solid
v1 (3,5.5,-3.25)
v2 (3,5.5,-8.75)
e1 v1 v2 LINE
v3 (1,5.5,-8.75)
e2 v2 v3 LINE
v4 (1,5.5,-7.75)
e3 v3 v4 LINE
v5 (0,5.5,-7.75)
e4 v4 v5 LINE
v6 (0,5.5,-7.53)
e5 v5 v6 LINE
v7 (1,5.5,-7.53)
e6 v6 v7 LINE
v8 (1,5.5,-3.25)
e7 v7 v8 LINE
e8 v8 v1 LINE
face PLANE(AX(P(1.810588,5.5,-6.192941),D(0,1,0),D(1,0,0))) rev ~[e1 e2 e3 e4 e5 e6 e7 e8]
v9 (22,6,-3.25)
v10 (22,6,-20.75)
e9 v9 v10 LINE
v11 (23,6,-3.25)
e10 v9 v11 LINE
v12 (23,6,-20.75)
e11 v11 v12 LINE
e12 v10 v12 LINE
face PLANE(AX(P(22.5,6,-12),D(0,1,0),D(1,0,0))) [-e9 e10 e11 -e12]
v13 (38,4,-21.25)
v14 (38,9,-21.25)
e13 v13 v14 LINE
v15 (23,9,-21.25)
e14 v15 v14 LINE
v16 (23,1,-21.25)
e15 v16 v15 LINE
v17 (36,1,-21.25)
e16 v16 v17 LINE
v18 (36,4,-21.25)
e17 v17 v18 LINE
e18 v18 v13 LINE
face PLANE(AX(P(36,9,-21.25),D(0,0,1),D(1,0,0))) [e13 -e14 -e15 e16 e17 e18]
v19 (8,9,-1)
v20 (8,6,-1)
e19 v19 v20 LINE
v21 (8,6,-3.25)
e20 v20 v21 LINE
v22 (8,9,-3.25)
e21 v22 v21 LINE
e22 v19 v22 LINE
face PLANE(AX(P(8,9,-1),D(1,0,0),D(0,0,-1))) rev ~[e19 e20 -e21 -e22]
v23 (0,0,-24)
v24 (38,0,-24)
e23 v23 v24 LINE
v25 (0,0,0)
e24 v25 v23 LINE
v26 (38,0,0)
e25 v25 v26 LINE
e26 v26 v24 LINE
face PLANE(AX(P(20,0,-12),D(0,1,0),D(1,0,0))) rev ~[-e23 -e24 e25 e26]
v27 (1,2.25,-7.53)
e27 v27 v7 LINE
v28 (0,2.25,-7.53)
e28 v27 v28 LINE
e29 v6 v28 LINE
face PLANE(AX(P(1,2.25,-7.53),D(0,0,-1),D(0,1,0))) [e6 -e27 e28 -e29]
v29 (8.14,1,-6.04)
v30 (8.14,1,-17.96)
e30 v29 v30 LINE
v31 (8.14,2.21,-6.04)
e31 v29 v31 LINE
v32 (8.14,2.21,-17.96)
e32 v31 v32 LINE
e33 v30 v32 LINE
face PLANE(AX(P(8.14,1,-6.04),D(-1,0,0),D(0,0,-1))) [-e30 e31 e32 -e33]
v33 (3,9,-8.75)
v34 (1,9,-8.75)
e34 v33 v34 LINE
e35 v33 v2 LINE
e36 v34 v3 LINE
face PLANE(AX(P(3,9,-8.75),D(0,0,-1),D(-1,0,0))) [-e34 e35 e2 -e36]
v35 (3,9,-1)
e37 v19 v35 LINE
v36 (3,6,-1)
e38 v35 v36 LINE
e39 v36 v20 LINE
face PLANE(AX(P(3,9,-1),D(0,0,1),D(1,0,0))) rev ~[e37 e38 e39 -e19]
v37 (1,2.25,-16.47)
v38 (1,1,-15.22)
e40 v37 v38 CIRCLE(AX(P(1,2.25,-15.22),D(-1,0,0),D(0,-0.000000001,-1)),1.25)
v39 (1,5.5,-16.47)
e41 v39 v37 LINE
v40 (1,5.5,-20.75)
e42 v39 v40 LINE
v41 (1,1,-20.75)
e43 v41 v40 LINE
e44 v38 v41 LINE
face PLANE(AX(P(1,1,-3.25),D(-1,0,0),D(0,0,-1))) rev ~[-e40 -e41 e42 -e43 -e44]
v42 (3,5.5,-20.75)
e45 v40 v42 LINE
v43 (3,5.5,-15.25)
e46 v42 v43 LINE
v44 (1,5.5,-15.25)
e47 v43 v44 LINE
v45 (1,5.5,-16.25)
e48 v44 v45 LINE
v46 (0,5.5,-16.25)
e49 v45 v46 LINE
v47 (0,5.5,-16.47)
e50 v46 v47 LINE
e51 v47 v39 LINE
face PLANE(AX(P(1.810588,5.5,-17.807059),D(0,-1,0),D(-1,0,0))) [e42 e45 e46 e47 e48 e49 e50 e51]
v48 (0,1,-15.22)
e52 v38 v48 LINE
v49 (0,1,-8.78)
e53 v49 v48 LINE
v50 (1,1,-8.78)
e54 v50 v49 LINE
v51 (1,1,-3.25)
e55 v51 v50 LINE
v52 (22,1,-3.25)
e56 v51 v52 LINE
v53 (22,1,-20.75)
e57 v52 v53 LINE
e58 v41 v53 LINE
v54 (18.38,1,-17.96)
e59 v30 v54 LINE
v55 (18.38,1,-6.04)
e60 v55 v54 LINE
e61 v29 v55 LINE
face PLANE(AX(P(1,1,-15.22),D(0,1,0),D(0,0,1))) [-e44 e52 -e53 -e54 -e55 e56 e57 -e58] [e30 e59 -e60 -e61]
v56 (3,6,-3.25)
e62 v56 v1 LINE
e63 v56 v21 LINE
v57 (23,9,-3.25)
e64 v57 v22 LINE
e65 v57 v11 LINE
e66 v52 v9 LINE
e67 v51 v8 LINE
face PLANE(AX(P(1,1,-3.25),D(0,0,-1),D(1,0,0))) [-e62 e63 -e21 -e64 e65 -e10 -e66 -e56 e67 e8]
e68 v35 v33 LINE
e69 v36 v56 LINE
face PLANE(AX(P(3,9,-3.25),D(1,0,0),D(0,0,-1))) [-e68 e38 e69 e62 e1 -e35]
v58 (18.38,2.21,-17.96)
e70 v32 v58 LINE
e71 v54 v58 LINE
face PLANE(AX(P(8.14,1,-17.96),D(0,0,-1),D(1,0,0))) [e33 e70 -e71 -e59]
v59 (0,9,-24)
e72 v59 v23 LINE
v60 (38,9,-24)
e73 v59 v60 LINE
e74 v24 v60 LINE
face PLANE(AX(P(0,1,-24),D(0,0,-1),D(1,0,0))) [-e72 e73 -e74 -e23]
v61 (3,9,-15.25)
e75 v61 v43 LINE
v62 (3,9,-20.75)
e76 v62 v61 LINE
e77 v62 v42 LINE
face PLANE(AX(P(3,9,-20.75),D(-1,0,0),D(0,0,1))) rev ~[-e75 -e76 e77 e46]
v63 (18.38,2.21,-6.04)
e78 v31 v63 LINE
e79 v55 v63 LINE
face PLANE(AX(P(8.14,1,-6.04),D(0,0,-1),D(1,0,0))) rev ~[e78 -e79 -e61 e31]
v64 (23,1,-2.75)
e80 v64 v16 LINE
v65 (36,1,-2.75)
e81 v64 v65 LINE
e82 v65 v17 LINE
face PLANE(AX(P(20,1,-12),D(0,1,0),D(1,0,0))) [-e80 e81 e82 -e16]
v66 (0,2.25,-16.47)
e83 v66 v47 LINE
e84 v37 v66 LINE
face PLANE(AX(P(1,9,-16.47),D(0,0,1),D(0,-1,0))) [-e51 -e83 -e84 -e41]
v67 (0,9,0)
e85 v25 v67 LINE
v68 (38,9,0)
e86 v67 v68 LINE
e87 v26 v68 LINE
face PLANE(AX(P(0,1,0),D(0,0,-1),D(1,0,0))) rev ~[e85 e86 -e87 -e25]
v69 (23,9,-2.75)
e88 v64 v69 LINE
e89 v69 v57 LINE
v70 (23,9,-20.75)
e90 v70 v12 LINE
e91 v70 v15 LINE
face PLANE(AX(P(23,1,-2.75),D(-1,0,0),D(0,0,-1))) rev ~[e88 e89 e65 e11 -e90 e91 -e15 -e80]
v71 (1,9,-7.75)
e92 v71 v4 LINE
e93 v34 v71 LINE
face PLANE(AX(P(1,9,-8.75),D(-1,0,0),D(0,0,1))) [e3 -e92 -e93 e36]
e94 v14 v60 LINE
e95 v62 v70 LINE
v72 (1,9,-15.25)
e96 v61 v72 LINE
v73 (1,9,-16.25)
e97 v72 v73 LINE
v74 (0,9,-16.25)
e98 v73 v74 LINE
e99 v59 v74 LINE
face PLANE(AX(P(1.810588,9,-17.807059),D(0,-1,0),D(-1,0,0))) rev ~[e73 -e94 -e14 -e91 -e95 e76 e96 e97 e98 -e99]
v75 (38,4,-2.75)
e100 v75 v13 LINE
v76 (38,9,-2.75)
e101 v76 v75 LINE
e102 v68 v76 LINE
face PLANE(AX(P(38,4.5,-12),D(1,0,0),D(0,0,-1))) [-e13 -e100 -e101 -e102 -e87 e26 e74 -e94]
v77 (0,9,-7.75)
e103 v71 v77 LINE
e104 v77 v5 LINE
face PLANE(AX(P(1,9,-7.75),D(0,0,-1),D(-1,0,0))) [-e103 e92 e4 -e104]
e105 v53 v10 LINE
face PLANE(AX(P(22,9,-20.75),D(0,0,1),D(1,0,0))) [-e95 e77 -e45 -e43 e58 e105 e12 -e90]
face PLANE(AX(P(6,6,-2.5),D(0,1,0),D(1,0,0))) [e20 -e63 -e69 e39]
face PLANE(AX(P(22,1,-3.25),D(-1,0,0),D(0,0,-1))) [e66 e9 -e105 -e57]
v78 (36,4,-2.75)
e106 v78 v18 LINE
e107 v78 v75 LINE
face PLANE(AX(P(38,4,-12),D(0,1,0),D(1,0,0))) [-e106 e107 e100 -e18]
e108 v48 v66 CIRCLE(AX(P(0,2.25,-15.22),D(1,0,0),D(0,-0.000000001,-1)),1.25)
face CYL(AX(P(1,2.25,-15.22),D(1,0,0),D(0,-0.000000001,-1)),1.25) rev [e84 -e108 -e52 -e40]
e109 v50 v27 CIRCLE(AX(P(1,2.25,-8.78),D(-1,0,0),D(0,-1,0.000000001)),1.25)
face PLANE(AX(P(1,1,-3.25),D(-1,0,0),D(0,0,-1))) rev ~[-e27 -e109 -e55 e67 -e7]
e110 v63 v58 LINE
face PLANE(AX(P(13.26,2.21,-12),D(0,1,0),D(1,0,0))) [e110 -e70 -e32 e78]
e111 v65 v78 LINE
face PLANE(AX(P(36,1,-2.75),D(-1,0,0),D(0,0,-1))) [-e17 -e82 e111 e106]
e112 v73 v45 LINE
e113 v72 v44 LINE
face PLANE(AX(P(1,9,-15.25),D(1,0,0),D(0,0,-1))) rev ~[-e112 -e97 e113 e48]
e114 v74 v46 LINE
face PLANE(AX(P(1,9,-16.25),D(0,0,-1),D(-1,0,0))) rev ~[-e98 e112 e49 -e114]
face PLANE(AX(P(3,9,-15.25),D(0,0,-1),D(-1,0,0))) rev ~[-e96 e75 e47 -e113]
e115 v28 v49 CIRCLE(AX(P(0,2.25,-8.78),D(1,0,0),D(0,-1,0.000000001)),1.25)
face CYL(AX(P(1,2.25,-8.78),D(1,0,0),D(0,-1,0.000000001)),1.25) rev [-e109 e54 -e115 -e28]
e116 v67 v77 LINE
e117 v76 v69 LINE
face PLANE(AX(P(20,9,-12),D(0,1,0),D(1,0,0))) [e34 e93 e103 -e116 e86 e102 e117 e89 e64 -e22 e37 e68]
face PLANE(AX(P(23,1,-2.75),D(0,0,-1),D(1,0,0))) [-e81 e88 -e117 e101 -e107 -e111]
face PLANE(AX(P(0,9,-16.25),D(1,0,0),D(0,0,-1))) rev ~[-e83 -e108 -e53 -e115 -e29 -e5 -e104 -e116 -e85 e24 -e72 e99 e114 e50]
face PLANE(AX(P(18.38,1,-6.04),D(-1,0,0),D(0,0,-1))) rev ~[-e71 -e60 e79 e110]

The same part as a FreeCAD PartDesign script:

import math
import FreeCAD as App
import Part
import Sketcher
Q = App.Units.Quantity


def add_polygon(sketch, points):
    """Adds a closed chain of lines whose ends are joined by coincident constraints."""
    first, n = sketch.GeometryCount, len(points)
    for a, b in zip(points, points[1:] + points[:1]):
        sketch.addGeometry(Part.LineSegment(App.Vector(*a, 0), App.Vector(*b, 0)), False)
    for i in range(n):
        sketch.addConstraint(Sketcher.Constraint("Coincident", first + i, 2, first + (i + 1) % n, 1))

doc = App.newDocument("Part")
body = doc.addObject("PartDesign::Body", "Body")

# Sketch on XZ plane
sketch1 = body.newObject("Sketcher::SketchObject", "Sketch")
sketch1.AttachmentSupport = (doc.getObject("XZ_Plane"), [""])
sketch1.MapMode = "FlatFace"
add_polygon(sketch1, [(0, -24), (0, 0), (40, 0), (40, -24)])  # lines 0-3
sketch1.addConstraint(Sketcher.Constraint("Vertical", 0))
sketch1.addConstraint(Sketcher.Constraint("Horizontal", 1))
sketch1.addConstraint(Sketcher.Constraint("Vertical", 2))
sketch1.addConstraint(Sketcher.Constraint("Horizontal", 3))
sketch1.addConstraint(Sketcher.Constraint("Coincident", 0, 2, -1, 1))
sketch1.addConstraint(Sketcher.Constraint("DistanceX", 1, 1, 1, 2, Q("40 mm")))
sketch1.addConstraint(Sketcher.Constraint("DistanceY", 0, 1, 0, 2, Q("24 mm")))
pad1 = body.newObject("PartDesign::Pad", "Pad")
pad1.Profile = sketch1
pad1.Length = 1
pad1.Reversed = True

# Sketch on XZ plane
sketch2 = body.newObject("Sketcher::SketchObject", "Sketch001")
sketch2.AttachmentSupport = (doc.getObject("XZ_Plane"), [""])
sketch2.MapMode = "FlatFace"
sketch2.AttachmentOffset = App.Placement(App.Vector(0, 0, -1), App.Rotation())
add_polygon(sketch2, [(0, -24), (0, 0), (40, 0), (40, -24)])  # lines 0-3
add_polygon(sketch2, [(22, -3.25), (1, -3.25), (1, -20.75), (22, -20.75)])  # lines 4-7
add_polygon(sketch2, [(36, -2.75), (23, -2.75), (23, -21.25), (36, -21.25)])  # lines 8-11
sketch2.addConstraint(Sketcher.Constraint("Vertical", 0))
sketch2.addConstraint(Sketcher.Constraint("Horizontal", 1))
sketch2.addConstraint(Sketcher.Constraint("Vertical", 2))
sketch2.addConstraint(Sketcher.Constraint("Horizontal", 3))
sketch2.addConstraint(Sketcher.Constraint("Horizontal", 4))
sketch2.addConstraint(Sketcher.Constraint("Vertical", 5))
sketch2.addConstraint(Sketcher.Constraint("Horizontal", 6))
sketch2.addConstraint(Sketcher.Constraint("Vertical", 7))
sketch2.addConstraint(Sketcher.Constraint("Horizontal", 8))
sketch2.addConstraint(Sketcher.Constraint("Vertical", 9))
sketch2.addConstraint(Sketcher.Constraint("Horizontal", 10))
sketch2.addConstraint(Sketcher.Constraint("Vertical", 11))
sketch2.addConstraint(Sketcher.Constraint("Coincident", 0, 2, -1, 1))
sketch2.addConstraint(Sketcher.Constraint("DistanceX", 1, 1, 1, 2, Q("40 mm")))
sketch2.addConstraint(Sketcher.Constraint("DistanceX", 4, 2, 4, 1, Q("21 mm")))
sketch2.addConstraint(Sketcher.Constraint("DistanceX", 8, 2, 8, 1, Q("13 mm")))
sketch2.addConstraint(Sketcher.Constraint("DistanceY", 0, 1, 0, 2, Q("24 mm")))
sketch2.addConstraint(Sketcher.Constraint("DistanceY", 5, 2, 5, 1, Q("17.5 mm")))
sketch2.addConstraint(Sketcher.Constraint("DistanceY", 9, 2, 9, 1, Q("18.5 mm")))
sketch2.addConstraint(Sketcher.Constraint("DistanceX", -1, 1, 4, 2, Q("1 mm")))
sketch2.addConstraint(Sketcher.Constraint("DistanceX", -1, 1, 8, 2, Q("23 mm")))
sketch2.addConstraint(Sketcher.Constraint("DistanceY", 6, 2, 8, 2, Q("18 mm")))
sketch2.addConstraint(Sketcher.Constraint("DistanceY", 4, 2, -1, 1, Q("3.25 mm")))
pad2 = body.newObject("PartDesign::Pad", "Pad001")
pad2.Profile = sketch2
pad2.Length = 8
pad2.Reversed = True

# Sketch on XZ plane
sketch3 = body.newObject("Sketcher::SketchObject", "Sketch002")
sketch3.AttachmentSupport = (doc.getObject("XZ_Plane"), [""])
sketch3.MapMode = "FlatFace"
sketch3.AttachmentOffset = App.Placement(App.Vector(0, 0, -9), App.Rotation())
add_polygon(sketch3, [(22, -20.75), (22, -3.25), (23, -3.25), (23, -20.75)])  # lines 0-3
sketch3.addConstraint(Sketcher.Constraint("Vertical", 0))
sketch3.addConstraint(Sketcher.Constraint("Horizontal", 1))
sketch3.addConstraint(Sketcher.Constraint("Vertical", 2))
sketch3.addConstraint(Sketcher.Constraint("Horizontal", 3))
sketch3.addConstraint(Sketcher.Constraint("DistanceX", 1, 1, 1, 2, Q("1 mm")))
sketch3.addConstraint(Sketcher.Constraint("DistanceY", 0, 1, 0, 2, Q("17.5 mm")))
sketch3.addConstraint(Sketcher.Constraint("DistanceX", -1, 1, 0, 2, Q("22 mm")))
sketch3.addConstraint(Sketcher.Constraint("DistanceY", 0, 2, -1, 1, Q("3.25 mm")))
pocket1 = body.newObject("PartDesign::Pocket", "Pocket")
pocket1.Profile = sketch3
pocket1.Length = 3
pocket1.Reversed = True

# Sketch on XZ plane
sketch4 = body.newObject("Sketcher::SketchObject", "Sketch003")
sketch4.AttachmentSupport = (doc.getObject("XZ_Plane"), [""])
sketch4.MapMode = "FlatFace"
sketch4.AttachmentOffset = App.Placement(App.Vector(0, 0, -1), App.Rotation())
add_polygon(sketch4, [(8.14, -17.96), (8.14, -6.04), (18.38, -6.04), (18.38, -17.96)])  # lines 0-3
sketch4.addConstraint(Sketcher.Constraint("Vertical", 0))
sketch4.addConstraint(Sketcher.Constraint("Horizontal", 1))
sketch4.addConstraint(Sketcher.Constraint("Vertical", 2))
sketch4.addConstraint(Sketcher.Constraint("Horizontal", 3))
sketch4.addConstraint(Sketcher.Constraint("DistanceX", 1, 1, 1, 2, Q("10.24 mm")))
sketch4.addConstraint(Sketcher.Constraint("DistanceY", 0, 1, 0, 2, Q("11.92 mm")))
sketch4.addConstraint(Sketcher.Constraint("DistanceX", -1, 1, 0, 2, Q("8.14 mm")))
sketch4.addConstraint(Sketcher.Constraint("DistanceY", 0, 2, -1, 1, Q("6.04 mm")))
pad3 = body.newObject("PartDesign::Pad", "Pad002")
pad3.Profile = sketch4
pad3.Length = 1.21
pad3.Reversed = True

# Sketch on YZ plane
sketch5 = body.newObject("Sketcher::SketchObject", "Sketch004")
sketch5.AttachmentSupport = (doc.getObject("YZ_Plane"), [""])
sketch5.MapMode = "FlatFace"
sketch5.AttachmentOffset = App.Placement(App.Vector(0, 0, 1), App.Rotation())
sketch5.addGeometry(Part.LineSegment(App.Vector(9, -7.53, 0), App.Vector(2.25, -7.53, 0)), False)
sketch5.addGeometry(Part.ArcOfCircle(Part.Circle(App.Vector(2.25, -8.78, 0), App.Vector(0, 0, 1), 1.25), math.radians(90), math.radians(180)), False)
sketch5.addGeometry(Part.LineSegment(App.Vector(1, -8.78, 0), App.Vector(1, -15.22, 0)), False)
sketch5.addGeometry(Part.ArcOfCircle(Part.Circle(App.Vector(2.25, -15.22, 0), App.Vector(0, 0, 1), 1.25), math.radians(-180), math.radians(-90)), False)
sketch5.addGeometry(Part.LineSegment(App.Vector(2.25, -16.47, 0), App.Vector(9, -16.47, 0)), False)
sketch5.addGeometry(Part.LineSegment(App.Vector(9, -16.47, 0), App.Vector(9, -7.53, 0)), False)
sketch5.addConstraint(Sketcher.Constraint("Tangent", 0, 2, 1, 1))
sketch5.addConstraint(Sketcher.Constraint("Tangent", 1, 2, 2, 1))
sketch5.addConstraint(Sketcher.Constraint("Tangent", 2, 2, 3, 1))
sketch5.addConstraint(Sketcher.Constraint("Tangent", 3, 2, 4, 1))
sketch5.addConstraint(Sketcher.Constraint("Coincident", 4, 2, 5, 1))
sketch5.addConstraint(Sketcher.Constraint("Coincident", 5, 2, 0, 1))
sketch5.addConstraint(Sketcher.Constraint("Horizontal", 0))
sketch5.addConstraint(Sketcher.Constraint("Vertical", 2))
sketch5.addConstraint(Sketcher.Constraint("Horizontal", 4))
sketch5.addConstraint(Sketcher.Constraint("Vertical", 5))
sketch5.addConstraint(Sketcher.Constraint("Equal", 1, 3))
sketch5.addConstraint(Sketcher.Constraint("Radius", 1, Q("1.25 mm")))
sketch5.addConstraint(Sketcher.Constraint("DistanceX", -1, 1, 1, 2, Q("1 mm")))
sketch5.addConstraint(Sketcher.Constraint("DistanceX", -1, 1, 4, 2, Q("9 mm")))
sketch5.addConstraint(Sketcher.Constraint("DistanceY", 2, 2, 2, 1, Q("6.44 mm")))
sketch5.addConstraint(Sketcher.Constraint("DistanceY", 1, 3, -1, 1, Q("8.78 mm")))
pocket2 = body.newObject("PartDesign::Pocket", "Pocket001")
pocket2.Profile = sketch5
pocket2.Length = 2

# Sketch on XZ plane
sketch6 = body.newObject("Sketcher::SketchObject", "Sketch005")
sketch6.AttachmentSupport = (doc.getObject("XZ_Plane"), [""])
sketch6.MapMode = "FlatFace"
sketch6.AttachmentOffset = App.Placement(App.Vector(0, 0, -9), App.Rotation())
add_polygon(sketch6, [(36, -21.25), (36, -2.75), (40, -2.75), (40, -21.25)])  # lines 0-3
sketch6.addConstraint(Sketcher.Constraint("Vertical", 0))
sketch6.addConstraint(Sketcher.Constraint("Horizontal", 1))
sketch6.addConstraint(Sketcher.Constraint("Vertical", 2))
sketch6.addConstraint(Sketcher.Constraint("Horizontal", 3))
sketch6.addConstraint(Sketcher.Constraint("DistanceX", 1, 1, 1, 2, Q("4 mm")))
sketch6.addConstraint(Sketcher.Constraint("DistanceY", 0, 1, 0, 2, Q("18.5 mm")))
sketch6.addConstraint(Sketcher.Constraint("DistanceX", -1, 1, 0, 2, Q("36 mm")))
sketch6.addConstraint(Sketcher.Constraint("DistanceY", 0, 2, -1, 1, Q("2.75 mm")))
pocket3 = body.newObject("PartDesign::Pocket", "Pocket002")
pocket3.Profile = sketch6
pocket3.Length = 5
pocket3.Reversed = True

# Sketch on YZ plane
sketch7 = body.newObject("Sketcher::SketchObject", "Sketch006")
sketch7.AttachmentSupport = (doc.getObject("YZ_Plane"), [""])
sketch7.MapMode = "FlatFace"
sketch7.AttachmentOffset = App.Placement(App.Vector(0, 0, 40), App.Rotation())
add_polygon(sketch7, [(9, 0), (0, 0), (0, -24), (9, -24)])  # lines 0-3
sketch7.addConstraint(Sketcher.Constraint("Horizontal", 0))
sketch7.addConstraint(Sketcher.Constraint("Vertical", 1))
sketch7.addConstraint(Sketcher.Constraint("Horizontal", 2))
sketch7.addConstraint(Sketcher.Constraint("Vertical", 3))
sketch7.addConstraint(Sketcher.Constraint("Coincident", 0, 2, -1, 1))
sketch7.addConstraint(Sketcher.Constraint("DistanceX", 0, 2, 0, 1, Q("9 mm")))
sketch7.addConstraint(Sketcher.Constraint("DistanceY", 1, 2, 1, 1, Q("24 mm")))
pocket4 = body.newObject("PartDesign::Pocket", "Pocket003")
pocket4.Profile = sketch7
pocket4.Length = 2

# Sketch on XZ plane
sketch8 = body.newObject("Sketcher::SketchObject", "Sketch007")
sketch8.AttachmentSupport = (doc.getObject("XZ_Plane"), [""])
sketch8.MapMode = "FlatFace"
sketch8.AttachmentOffset = App.Placement(App.Vector(0, 0, -9), App.Rotation())
add_polygon(sketch8, [(4, -4), (4, -1), (8, -1), (8, -4)])  # lines 0-3
sketch8.addConstraint(Sketcher.Constraint("Vertical", 0))
sketch8.addConstraint(Sketcher.Constraint("Horizontal", 1))
sketch8.addConstraint(Sketcher.Constraint("Vertical", 2))
sketch8.addConstraint(Sketcher.Constraint("Horizontal", 3))
sketch8.addConstraint(Sketcher.Constraint("DistanceX", 1, 1, 1, 2, Q("4 mm")))
sketch8.addConstraint(Sketcher.Constraint("DistanceY", 0, 1, 0, 2, Q("3 mm")))
sketch8.addConstraint(Sketcher.Constraint("DistanceX", -1, 1, 0, 2, Q("4 mm")))
sketch8.addConstraint(Sketcher.Constraint("DistanceY", 0, 2, -1, 1, Q("1 mm")))
pocket5 = body.newObject("PartDesign::Pocket", "Pocket004")
pocket5.Profile = sketch8
pocket5.Length = 3
pocket5.Reversed = True

# Sketch on XZ plane
sketch9 = body.newObject("Sketcher::SketchObject", "Sketch008")
sketch9.AttachmentSupport = (doc.getObject("XZ_Plane"), [""])
sketch9.MapMode = "FlatFace"
sketch9.AttachmentOffset = App.Placement(App.Vector(0, 0, -9), App.Rotation())
add_polygon(sketch9, [(1, -20.75), (1, -16.47), (0, -16.47), (0, -16.25), (1, -16.25), (1, -15.25), (3, -15.25), (3, -20.75)])  # lines 0-7
add_polygon(sketch9, [(1, -3.25), (3, -3.25), (3, -8.75), (1, -8.75), (1, -7.75), (0, -7.75), (0, -7.53), (1, -7.53)])  # lines 8-15
sketch9.addConstraint(Sketcher.Constraint("Vertical", 0))
sketch9.addConstraint(Sketcher.Constraint("Horizontal", 1))
sketch9.addConstraint(Sketcher.Constraint("Vertical", 2))
sketch9.addConstraint(Sketcher.Constraint("Horizontal", 3))
sketch9.addConstraint(Sketcher.Constraint("Vertical", 4))
sketch9.addConstraint(Sketcher.Constraint("Horizontal", 5))
sketch9.addConstraint(Sketcher.Constraint("Vertical", 6))
sketch9.addConstraint(Sketcher.Constraint("Horizontal", 7))
sketch9.addConstraint(Sketcher.Constraint("Horizontal", 8))
sketch9.addConstraint(Sketcher.Constraint("Vertical", 9))
sketch9.addConstraint(Sketcher.Constraint("Horizontal", 10))
sketch9.addConstraint(Sketcher.Constraint("Vertical", 11))
sketch9.addConstraint(Sketcher.Constraint("Horizontal", 12))
sketch9.addConstraint(Sketcher.Constraint("Vertical", 13))
sketch9.addConstraint(Sketcher.Constraint("Horizontal", 14))
sketch9.addConstraint(Sketcher.Constraint("Vertical", 15))
sketch9.addConstraint(Sketcher.Constraint("PointOnObject", 1, 2, -2))
sketch9.addConstraint(Sketcher.Constraint("PointOnObject", 12, 2, -2))
sketch9.addConstraint(Sketcher.Constraint("Vertical", 0, 2, 3, 2))
sketch9.addConstraint(Sketcher.Constraint("Vertical", 6, 2, 8, 2))
sketch9.addConstraint(Sketcher.Constraint("Vertical", 7, 2, 10, 2))
sketch9.addConstraint(Sketcher.Constraint("Vertical", 11, 2, 14, 2))
sketch9.addConstraint(Sketcher.Constraint("Equal", 14, 4))
sketch9.addConstraint(Sketcher.Constraint("Equal", 6, 9))
sketch9.addConstraint(Sketcher.Constraint("Equal", 4, 11))
sketch9.addConstraint(Sketcher.Constraint("Equal", 2, 13))
sketch9.addConstraint(Sketcher.Constraint("DistanceX", 1, 2, 1, 1, Q("1 mm")))
sketch9.addConstraint(Sketcher.Constraint("DistanceX", 5, 1, 5, 2, Q("2 mm")))
sketch9.addConstraint(Sketcher.Constraint("DistanceY", 6, 2, 6, 1, Q("5.5 mm")))
sketch9.addConstraint(Sketcher.Constraint("DistanceY", 5, 2, 8, 2, Q("12 mm")))
sketch9.addConstraint(Sketcher.Constraint("DistanceY", 0, 1, 0, 2, Q("4.28 mm")))
sketch9.addConstraint(Sketcher.Constraint("DistanceY", 0, 2, -1, 1, Q("16.47 mm")))
pad4 = body.newObject("PartDesign::Pad", "Pad003")
pad4.Profile = sketch9
pad4.Length = 3.5

# Sketch on XZ plane
sketch10 = body.newObject("Sketcher::SketchObject", "Sketch009")
sketch10.AttachmentSupport = (doc.getObject("XZ_Plane"), [""])
sketch10.MapMode = "FlatFace"
sketch10.AttachmentOffset = App.Placement(App.Vector(0, 0, -9), App.Rotation())
add_polygon(sketch10, [(3, -3.25), (3, -1), (4, -1), (4, -3.25)])  # lines 0-3
sketch10.addConstraint(Sketcher.Constraint("Vertical", 0))
sketch10.addConstraint(Sketcher.Constraint("Horizontal", 1))
sketch10.addConstraint(Sketcher.Constraint("Vertical", 2))
sketch10.addConstraint(Sketcher.Constraint("Horizontal", 3))
sketch10.addConstraint(Sketcher.Constraint("DistanceX", 1, 1, 1, 2, Q("1 mm")))
sketch10.addConstraint(Sketcher.Constraint("DistanceX", -1, 1, 0, 2, Q("3 mm")))
sketch10.addConstraint(Sketcher.Constraint("DistanceY", 0, 2, -1, 1, Q("1 mm")))
sketch10.addConstraint(Sketcher.Constraint("DistanceY", 0, 1, 0, 2, Q("2.25 mm")))
pocket6 = body.newObject("PartDesign::Pocket", "Pocket005")
pocket6.Profile = sketch10
pocket6.Length = 3
pocket6.Reversed = True

doc.recompute()
